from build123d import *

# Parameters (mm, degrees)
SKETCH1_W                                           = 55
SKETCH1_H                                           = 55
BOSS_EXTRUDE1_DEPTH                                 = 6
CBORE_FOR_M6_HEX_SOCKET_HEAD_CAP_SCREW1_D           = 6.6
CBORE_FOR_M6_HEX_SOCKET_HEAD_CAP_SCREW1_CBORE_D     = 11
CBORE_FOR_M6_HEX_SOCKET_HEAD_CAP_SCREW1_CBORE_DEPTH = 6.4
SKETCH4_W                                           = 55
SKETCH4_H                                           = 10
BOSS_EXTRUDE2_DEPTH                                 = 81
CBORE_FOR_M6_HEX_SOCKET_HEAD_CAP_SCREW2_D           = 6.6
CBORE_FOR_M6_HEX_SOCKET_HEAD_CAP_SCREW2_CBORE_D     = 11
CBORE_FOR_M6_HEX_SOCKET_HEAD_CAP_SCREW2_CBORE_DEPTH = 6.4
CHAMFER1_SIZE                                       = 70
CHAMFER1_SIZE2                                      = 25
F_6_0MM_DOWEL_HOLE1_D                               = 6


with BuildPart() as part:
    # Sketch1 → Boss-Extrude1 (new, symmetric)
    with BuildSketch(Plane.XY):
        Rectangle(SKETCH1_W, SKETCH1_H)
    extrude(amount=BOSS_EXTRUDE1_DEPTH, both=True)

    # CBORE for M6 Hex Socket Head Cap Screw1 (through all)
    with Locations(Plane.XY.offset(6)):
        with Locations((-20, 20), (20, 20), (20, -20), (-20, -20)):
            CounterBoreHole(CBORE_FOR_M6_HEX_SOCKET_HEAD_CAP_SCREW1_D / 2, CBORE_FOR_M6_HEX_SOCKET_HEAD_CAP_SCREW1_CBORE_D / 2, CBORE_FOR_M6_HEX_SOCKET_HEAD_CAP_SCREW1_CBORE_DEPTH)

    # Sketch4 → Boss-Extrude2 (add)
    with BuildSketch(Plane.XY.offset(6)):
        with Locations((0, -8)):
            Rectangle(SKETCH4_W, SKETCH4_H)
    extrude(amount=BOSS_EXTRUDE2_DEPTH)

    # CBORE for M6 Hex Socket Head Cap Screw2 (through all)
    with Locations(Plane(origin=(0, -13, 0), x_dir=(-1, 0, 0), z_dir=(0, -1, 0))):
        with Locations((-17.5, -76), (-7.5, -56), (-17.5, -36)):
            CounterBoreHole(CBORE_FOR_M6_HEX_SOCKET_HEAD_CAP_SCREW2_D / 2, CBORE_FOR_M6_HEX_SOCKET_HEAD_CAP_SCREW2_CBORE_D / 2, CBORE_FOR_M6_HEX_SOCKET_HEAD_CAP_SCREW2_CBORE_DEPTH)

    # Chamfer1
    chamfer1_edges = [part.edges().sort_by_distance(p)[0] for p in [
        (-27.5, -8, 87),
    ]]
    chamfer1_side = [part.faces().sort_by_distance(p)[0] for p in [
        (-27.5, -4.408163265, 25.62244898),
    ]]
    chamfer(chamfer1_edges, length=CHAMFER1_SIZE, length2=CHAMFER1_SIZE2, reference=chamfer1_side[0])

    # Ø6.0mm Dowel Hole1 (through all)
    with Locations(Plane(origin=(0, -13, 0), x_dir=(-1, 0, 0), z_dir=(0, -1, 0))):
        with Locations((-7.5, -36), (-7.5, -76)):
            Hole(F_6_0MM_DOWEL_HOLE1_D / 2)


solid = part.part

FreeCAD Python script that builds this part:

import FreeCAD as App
import Part
import Sketcher

V = App.Vector
Q = App.Units.Quantity


def edges_at(feature, points):
    """Names of the edges that pass closest to the given points."""
    edges = feature.Shape.Edges
    near = lambda p: min(range(len(edges)), key=lambda i: edges[i].distToShape(Part.Vertex(*p))[0])
    return sorted({f"Edge{near(p) + 1}" for p in points})

doc = App.newDocument("Part")
body = doc.addObject("PartDesign::Body", "Body")

# Sketch on XY plane
sketch1 = body.newObject("Sketcher::SketchObject", "Sketch")
sketch1.AttachmentSupport = (doc.getObject("XY_Plane"), [""])
sketch1.MapMode = "FlatFace"
sketch1.addGeometry(Part.LineSegment(V(-28, 28, 0), V(-28, -28, 0)), False)
sketch1.addGeometry(Part.LineSegment(V(-28, -28, 0), V(28, -28, 0)), False)
sketch1.addGeometry(Part.LineSegment(V(28, -28, 0), V(28, 28, 0)), False)
sketch1.addGeometry(Part.LineSegment(V(28, 28, 0), V(-28, 28, 0)), False)
sketch1.addConstraint(Sketcher.Constraint("Coincident", 0, 2, 1, 1))
sketch1.addConstraint(Sketcher.Constraint("Coincident", 1, 2, 2, 1))
sketch1.addConstraint(Sketcher.Constraint("Coincident", 2, 2, 3, 1))
sketch1.addConstraint(Sketcher.Constraint("Coincident", 3, 2, 0, 1))
sketch1.addConstraint(Sketcher.Constraint("Vertical", 0))
sketch1.addConstraint(Sketcher.Constraint("Horizontal", 1))
sketch1.addConstraint(Sketcher.Constraint("Vertical", 2))
sketch1.addConstraint(Sketcher.Constraint("Horizontal", 3))
sketch1.addConstraint(Sketcher.Constraint("Symmetric", 0, 2, 2, 2, -1, 1))
sketch1.addConstraint(Sketcher.Constraint("Equal", 3, 0))
sketch1.addConstraint(Sketcher.Constraint("DistanceX", 1, 1, 1, 2, Q("55 mm")))
pad1 = body.newObject("PartDesign::Pad", "Pad")
pad1.Profile = sketch1
pad1.Length = 12
pad1.Midplane = True

# Sketch on XY plane
sketch2 = body.newObject("Sketcher::SketchObject", "Sketch001")
sketch2.AttachmentSupport = (doc.getObject("XY_Plane"), [""])
sketch2.MapMode = "FlatFace"
sketch2.AttachmentOffset = App.Placement(V(0, 0, 6), App.Rotation())
sketch2.addGeometry(Part.Circle(V(-20, 20, 0), V(0, 0, 1), 3.3), False)
sketch2.addGeometry(Part.Circle(V(20, 20, 0), V(0, 0, 1), 3.3), False)
sketch2.addGeometry(Part.Circle(V(20, -20, 0), V(0, 0, 1), 3.3), False)
sketch2.addGeometry(Part.Circle(V(-20, -20, 0), V(0, 0, 1), 3.3), False)
sketch2.addConstraint(Sketcher.Constraint("Equal", 0, 1))
sketch2.addConstraint(Sketcher.Constraint("Equal", 1, 2))
sketch2.addConstraint(Sketcher.Constraint("Equal", 2, 3))
sketch2.addConstraint(Sketcher.Constraint("Symmetric", 0, 3, 2, 3, -1, 1))
sketch2.addConstraint(Sketcher.Constraint("Symmetric", 1, 3, 3, 3, -1, 1))
sketch2.addConstraint(Sketcher.Constraint("Symmetric", 0, 3, 1, 3, -2))
sketch2.addConstraint(Sketcher.Constraint("Diameter", 0, Q("6.6 mm")))
sketch2.addConstraint(Sketcher.Constraint("DistanceX", 0, 3, -1, 1, Q("20 mm")))
sketch2.addConstraint(Sketcher.Constraint("DistanceY", -1, 1, 0, 3, Q("20 mm")))
doc.recompute()
hole = body.newObject("PartDesign::Hole", "Hole")
hole.Profile = sketch2
hole.ThreadType = "None"
hole.Diameter = 6.6
hole.DepthType = "ThroughAll"
hole.HoleCutType = "Counterbore"
hole.HoleCutDiameter = 11
hole.HoleCutDepth = 6.4

# Sketch on XY plane
sketch3 = body.newObject("Sketcher::SketchObject", "Sketch002")
sketch3.AttachmentSupport = (doc.getObject("XY_Plane"), [""])
sketch3.MapMode = "FlatFace"
sketch3.AttachmentOffset = App.Placement(V(0, 0, 6), App.Rotation())
sketch3.addGeometry(Part.LineSegment(V(-28, -3, 0), V(-28, -13, 0)), False)
sketch3.addGeometry(Part.LineSegment(V(-28, -13, 0), V(28, -13, 0)), False)
sketch3.addGeometry(Part.LineSegment(V(28, -13, 0), V(28, -3, 0)), False)
sketch3.addGeometry(Part.LineSegment(V(28, -3, 0), V(-28, -3, 0)), False)
sketch3.addConstraint(Sketcher.Constraint("Coincident", 0, 2, 1, 1))
sketch3.addConstraint(Sketcher.Constraint("Coincident", 1, 2, 2, 1))
sketch3.addConstraint(Sketcher.Constraint("Coincident", 2, 2, 3, 1))
sketch3.addConstraint(Sketcher.Constraint("Coincident", 3, 2, 0, 1))
sketch3.addConstraint(Sketcher.Constraint("Vertical", 0))
sketch3.addConstraint(Sketcher.Constraint("Horizontal", 1))
sketch3.addConstraint(Sketcher.Constraint("Vertical", 2))
sketch3.addConstraint(Sketcher.Constraint("Horizontal", 3))
sketch3.addConstraint(Sketcher.Constraint("DistanceX", 1, 1, 1, 2, Q("55 mm")))
sketch3.addConstraint(Sketcher.Constraint("DistanceY", 0, 2, 0, 1, Q("10 mm")))
sketch3.addConstraint(Sketcher.Constraint("DistanceY", 0, 2, -1, 1, Q("13 mm")))
sketch3.addConstraint(Sketcher.Constraint("DistanceX", 0, 2, -1, 1, Q("27.5 mm")))
pad2 = body.newObject("PartDesign::Pad", "Pad001")
pad2.Profile = sketch3
pad2.Length = 81

# Sketch on XZ plane
sketch4 = body.newObject("Sketcher::SketchObject", "Sketch003")
sketch4.AttachmentSupport = (doc.getObject("XZ_Plane"), [""])
sketch4.MapMode = "FlatFace"
sketch4.AttachmentOffset = App.Placement(V(0, 0, 13), App.Rotation())
sketch4.addGeometry(Part.Circle(V(17.5, 76, 0), V(0, 0, 1), 3.3), False)
sketch4.addGeometry(Part.Circle(V(7.5, 56, 0), V(0, 0, 1), 3.3), False)
sketch4.addGeometry(Part.Circle(V(17.5, 36, 0), V(0, 0, 1), 3.3), False)
sketch4.addConstraint(Sketcher.Constraint("Equal", 0, 1))
sketch4.addConstraint(Sketcher.Constraint("Equal", 1, 2))
sketch4.addConstraint(Sketcher.Constraint("Vertical", 0, 3, 2, 3))
sketch4.addConstraint(Sketcher.Constraint("Diameter", 0, Q("6.6 mm")))
sketch4.addConstraint(Sketcher.Constraint("DistanceY", -1, 1, 0, 3, Q("76 mm")))
sketch4.addConstraint(Sketcher.Constraint("DistanceY", -1, 1, 1, 3, Q("56 mm")))
sketch4.addConstraint(Sketcher.Constraint("DistanceY", -1, 1, 2, 3, Q("36 mm")))
sketch4.addConstraint(Sketcher.Constraint("DistanceX", 1, 3, 0, 3, Q("10 mm")))
sketch4.addConstraint(Sketcher.Constraint("DistanceX", -1, 1, 0, 3, Q("17.5 mm")))
doc.recompute()
hole2 = body.newObject("PartDesign::Hole", "Hole001")
hole2.Profile = sketch4
hole2.ThreadType = "None"
hole2.Diameter = 6.6
hole2.DepthType = "ThroughAll"
hole2.HoleCutType = "Counterbore"
hole2.HoleCutDiameter = 11
hole2.HoleCutDepth = 6.4
doc.recompute()

chamfer = body.newObject("PartDesign::Chamfer", "Chamfer")
chamfer.Base = (hole2, edges_at(hole2, [(-27.5, -8, 87)]))
chamfer.ChamferType = "Two distances"
chamfer.Size = 70
chamfer.Size2 = 25

# Sketch on XZ plane
sketch5 = body.newObject("Sketcher::SketchObject", "Sketch004")
sketch5.AttachmentSupport = (doc.getObject("XZ_Plane"), [""])
sketch5.MapMode = "FlatFace"
sketch5.AttachmentOffset = App.Placement(V(0, 0, 13), App.Rotation())
sketch5.addGeometry(Part.Circle(V(7.5, 36, 0), V(0, 0, 1), 3), False)
sketch5.addGeometry(Part.Circle(V(7.5, 76, 0), V(0, 0, 1), 3), False)
sketch5.addConstraint(Sketcher.Constraint("Equal", 0, 1))
sketch5.addConstraint(Sketcher.Constraint("Vertical", 0, 3, 1, 3))
sketch5.addConstraint(Sketcher.Constraint("Diameter", 0, Q("6 mm")))
sketch5.addConstraint(Sketcher.Constraint("DistanceY", -1, 1, 0, 3, Q("36 mm")))
sketch5.addConstraint(Sketcher.Constraint("DistanceY", -1, 1, 1, 3, Q("76 mm")))
sketch5.addConstraint(Sketcher.Constraint("DistanceX", -1, 1, 0, 3, Q("7.5 mm")))
doc.recompute()
hole3 = body.newObject("PartDesign::Hole", "Hole002")
hole3.Profile = sketch5
hole3.ThreadType = "None"
hole3.Diameter = 6
hole3.DepthType = "ThroughAll"

doc.recompute()
